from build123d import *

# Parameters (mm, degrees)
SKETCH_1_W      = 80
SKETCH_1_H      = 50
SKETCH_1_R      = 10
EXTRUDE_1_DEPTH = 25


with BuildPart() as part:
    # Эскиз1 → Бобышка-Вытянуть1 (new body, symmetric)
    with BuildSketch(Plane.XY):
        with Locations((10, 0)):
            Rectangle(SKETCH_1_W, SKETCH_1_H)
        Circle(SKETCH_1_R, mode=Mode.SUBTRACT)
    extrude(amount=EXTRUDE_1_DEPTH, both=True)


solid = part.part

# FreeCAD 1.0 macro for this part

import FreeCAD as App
import Part
import Sketcher
Q = App.Units.Quantity


def add_polygon(sketch, points):
    """Adds a closed chain of lines whose ends are joined by coincident constraints."""
    first, n = sketch.GeometryCount, len(points)
    for a, b in zip(points, points[1:] + points[:1]):
        sketch.addGeometry(Part.LineSegment(App.Vector(*a, 0), App.Vector(*b, 0)), False)
    for i in range(n):
        sketch.addConstraint(Sketcher.Constraint("Coincident", first + i, 2, first + (i + 1) % n, 1))

doc = App.newDocument("Part")
body = doc.addObject("PartDesign::Body", "Body")

# Sketch on XY plane
sketch1 = doc.addObject("Sketcher::SketchObject", "Sketch")
body.addObject(sketch1)
sketch1.AttachmentSupport = (doc.XY_Plane, [""])
sketch1.MapMode = "FlatFace"
add_polygon(sketch1, [(-30, 25), (-30, -25), (50, -25), (50, 25)])  # lines 0-3
sketch1.addGeometry(Part.Circle(App.Vector(0, 0, 0), App.Vector(0, 0, 1), 10), False)  # 4
sketch1.addConstraint([
    Sketcher.Constraint("Vertical", 0),
    Sketcher.Constraint("Horizontal", 1),
    Sketcher.Constraint("Vertical", 2),
    Sketcher.Constraint("Horizontal", 3),
    Sketcher.Constraint("Coincident", 4, 3, -1, 1),
    Sketcher.Constraint("Diameter", 4, Q("20 mm")),
    Sketcher.Constraint("DistanceX", 1, 1, 1, 2, Q("80 mm")),
    Sketcher.Constraint("DistanceY", 0, 2, 0, 1, Q("50 mm")),
    Sketcher.Constraint("DistanceX", 0, 2, -1, 1, Q("30 mm")),
    Sketcher.Constraint("DistanceY", 0, 2, -1, 1, Q("25 mm")),
])
pad1 = doc.addObject("PartDesign::Pad", "Pad")
body.addObject(pad1)
pad1.Profile = sketch1
pad1.Length = 50
pad1.Midplane = True

doc.recompute()
